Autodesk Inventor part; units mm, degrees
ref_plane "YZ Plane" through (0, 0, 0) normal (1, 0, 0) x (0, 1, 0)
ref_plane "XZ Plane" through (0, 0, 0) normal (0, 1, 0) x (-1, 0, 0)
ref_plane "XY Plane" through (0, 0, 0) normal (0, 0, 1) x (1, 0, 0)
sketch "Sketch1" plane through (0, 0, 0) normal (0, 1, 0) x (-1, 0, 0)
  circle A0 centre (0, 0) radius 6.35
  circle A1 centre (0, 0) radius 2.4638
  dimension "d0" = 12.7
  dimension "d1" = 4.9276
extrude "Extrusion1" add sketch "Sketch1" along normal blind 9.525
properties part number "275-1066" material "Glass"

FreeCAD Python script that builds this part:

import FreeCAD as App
import Part
import Sketcher

V = App.Vector
Q = App.Units.Quantity

doc = App.newDocument("Part")
body = doc.addObject("PartDesign::Body", "Body")

# Sketch on XZ plane
sketch1 = body.newObject("Sketcher::SketchObject", "Sketch")
sketch1.AttachmentSupport = (doc.getObject("XZ_Plane"), [""])
sketch1.MapMode = "FlatFace"
sketch1.addGeometry(Part.Circle(V(0, 0, 0), V(0, 0, 1), 6.35), False)
sketch1.addGeometry(Part.Circle(V(0, 0, 0), V(0, 0, 1), 2.4638), False)
sketch1.addConstraint(Sketcher.Constraint("Coincident", 0, 3, -1, 1))
sketch1.addConstraint(Sketcher.Constraint("Coincident", 1, 3, -1, 1))
sketch1.addConstraint(Sketcher.Constraint("Diameter", 0, Q("0.5 in")))
sketch1.addConstraint(Sketcher.Constraint("Diameter", 1, Q("0.194 in")))
pad1 = body.newObject("PartDesign::Pad", "Pad")
pad1.Profile = sketch1
pad1.Length = Q("0.375 in")
pad1.Reversed = True

doc.recompute()
